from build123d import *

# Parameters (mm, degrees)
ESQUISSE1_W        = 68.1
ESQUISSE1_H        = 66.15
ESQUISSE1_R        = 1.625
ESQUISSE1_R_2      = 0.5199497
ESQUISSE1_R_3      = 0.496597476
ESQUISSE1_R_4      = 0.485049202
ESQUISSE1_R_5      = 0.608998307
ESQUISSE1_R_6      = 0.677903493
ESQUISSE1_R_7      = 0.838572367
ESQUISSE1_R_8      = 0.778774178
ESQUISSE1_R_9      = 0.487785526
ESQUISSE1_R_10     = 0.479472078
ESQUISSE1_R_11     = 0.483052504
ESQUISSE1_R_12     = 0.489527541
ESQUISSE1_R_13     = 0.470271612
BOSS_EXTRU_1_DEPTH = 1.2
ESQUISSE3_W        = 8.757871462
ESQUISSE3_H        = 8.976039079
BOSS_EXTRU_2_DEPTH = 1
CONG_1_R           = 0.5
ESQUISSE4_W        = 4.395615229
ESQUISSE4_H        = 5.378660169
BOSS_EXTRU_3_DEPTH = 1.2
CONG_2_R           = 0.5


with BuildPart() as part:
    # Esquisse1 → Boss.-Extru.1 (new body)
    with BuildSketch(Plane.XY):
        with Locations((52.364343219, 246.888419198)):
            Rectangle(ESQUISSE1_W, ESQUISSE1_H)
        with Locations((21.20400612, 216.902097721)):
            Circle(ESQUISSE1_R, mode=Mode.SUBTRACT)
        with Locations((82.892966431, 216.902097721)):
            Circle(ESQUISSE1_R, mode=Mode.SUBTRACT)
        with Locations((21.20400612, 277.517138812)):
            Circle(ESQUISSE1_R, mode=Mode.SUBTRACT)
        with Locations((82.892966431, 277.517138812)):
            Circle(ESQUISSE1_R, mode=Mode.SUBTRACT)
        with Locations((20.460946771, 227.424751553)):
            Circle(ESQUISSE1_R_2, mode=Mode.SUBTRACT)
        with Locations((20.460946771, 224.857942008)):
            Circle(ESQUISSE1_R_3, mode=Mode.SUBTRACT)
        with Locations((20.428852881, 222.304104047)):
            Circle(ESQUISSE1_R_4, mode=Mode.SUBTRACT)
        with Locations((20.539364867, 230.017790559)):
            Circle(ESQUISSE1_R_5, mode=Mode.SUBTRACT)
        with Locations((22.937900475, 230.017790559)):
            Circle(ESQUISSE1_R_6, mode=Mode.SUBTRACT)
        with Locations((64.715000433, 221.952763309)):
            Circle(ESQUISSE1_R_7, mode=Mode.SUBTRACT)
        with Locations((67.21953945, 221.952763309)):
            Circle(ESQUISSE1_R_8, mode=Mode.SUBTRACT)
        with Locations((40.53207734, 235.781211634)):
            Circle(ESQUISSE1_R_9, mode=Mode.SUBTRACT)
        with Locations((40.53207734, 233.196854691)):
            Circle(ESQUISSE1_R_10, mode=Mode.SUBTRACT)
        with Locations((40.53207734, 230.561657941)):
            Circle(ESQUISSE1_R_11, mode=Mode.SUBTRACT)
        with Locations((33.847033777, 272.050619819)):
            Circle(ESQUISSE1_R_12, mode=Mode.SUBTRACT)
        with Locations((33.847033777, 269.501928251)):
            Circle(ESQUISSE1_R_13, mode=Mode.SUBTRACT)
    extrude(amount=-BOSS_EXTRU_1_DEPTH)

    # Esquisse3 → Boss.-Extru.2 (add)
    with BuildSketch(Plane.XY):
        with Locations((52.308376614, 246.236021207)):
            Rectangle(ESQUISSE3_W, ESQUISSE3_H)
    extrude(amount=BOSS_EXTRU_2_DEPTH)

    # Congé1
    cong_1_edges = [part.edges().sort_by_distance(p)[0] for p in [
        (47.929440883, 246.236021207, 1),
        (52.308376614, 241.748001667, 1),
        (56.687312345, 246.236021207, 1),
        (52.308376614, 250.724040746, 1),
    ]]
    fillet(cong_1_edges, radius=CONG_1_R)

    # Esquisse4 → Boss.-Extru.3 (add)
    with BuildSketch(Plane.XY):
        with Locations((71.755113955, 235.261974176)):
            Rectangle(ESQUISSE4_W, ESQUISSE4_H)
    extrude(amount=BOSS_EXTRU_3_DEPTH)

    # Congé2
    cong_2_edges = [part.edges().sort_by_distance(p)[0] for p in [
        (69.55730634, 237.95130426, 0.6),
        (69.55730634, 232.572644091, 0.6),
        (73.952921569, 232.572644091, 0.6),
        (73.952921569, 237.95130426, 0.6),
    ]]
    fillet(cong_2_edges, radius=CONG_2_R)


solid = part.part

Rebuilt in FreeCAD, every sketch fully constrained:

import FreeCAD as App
import Part
import Sketcher


def edges_at(feature, points):
    """Names of the edges that pass closest to the given points."""
    edges = feature.Shape.Edges
    near = lambda p: min(range(len(edges)), key=lambda i: edges[i].distToShape(Part.Vertex(*p))[0])
    return sorted({f"Edge{near(p) + 1}" for p in points})

doc = App.newDocument("Part")
params = doc.addObject("Spreadsheet::Sheet", "Params")
for row, (alias, value) in enumerate([
    ("sketch1_diameter", "3.25 mm"),
    ("sketch1_width", "68.1 mm"),
    ("sketch1_height", "66.15 mm"),
    ("pad1_length", "1.2 mm"),
    ("pad2_length", "1 mm"),
    ("fillet_radius", "0.5 mm"),
    ("pad3_length", "1.2 mm"),
    ("fillet2_radius", "0.5 mm"),
], start=1):
    params.set(f"A{row}", alias)
    params.set(f"B{row}", "=" + value)
    params.setAlias(f"B{row}", alias)

body = doc.addObject("PartDesign::Body", "Body")

sketch1 = body.newObject("Sketcher::SketchObject", "Sketch")
sketch1.AttachmentSupport = (doc.getObject("XY_Plane"), [""])
sketch1.MapMode = "FlatFace"
sketch1.addGeometry(Part.LineSegment(App.Vector(18.314343, 279.963419, 0), App.Vector(18.314343, 213.813419, 0)), False)
sketch1.addGeometry(Part.LineSegment(App.Vector(18.314343, 213.813419, 0), App.Vector(86.414343, 213.813419, 0)), False)
sketch1.addGeometry(Part.LineSegment(App.Vector(86.414343, 213.813419, 0), App.Vector(86.414343, 279.963419, 0)), False)
sketch1.addGeometry(Part.LineSegment(App.Vector(86.414343, 279.963419, 0), App.Vector(18.314343, 279.963419, 0)), False)
sketch1.addGeometry(Part.Circle(App.Vector(21.204006, 216.902098, 0), App.Vector(0, 0, 1), 1.625), False)
sketch1.addGeometry(Part.Circle(App.Vector(20.428853, 222.304104, 0), App.Vector(0, 0, 1), 0.485049), False)
sketch1.addGeometry(Part.Circle(App.Vector(20.460947, 224.857942, 0), App.Vector(0, 0, 1), 0.496597), False)
sketch1.addGeometry(Part.Circle(App.Vector(20.460947, 227.424752, 0), App.Vector(0, 0, 1), 0.51995), False)
sketch1.addGeometry(Part.Circle(App.Vector(20.539365, 230.017791, 0), App.Vector(0, 0, 1), 0.608998), False)
sketch1.addGeometry(Part.Circle(App.Vector(22.9379, 230.017791, 0), App.Vector(0, 0, 1), 0.677903), False)
sketch1.addGeometry(Part.Circle(App.Vector(40.532077, 230.561658, 0), App.Vector(0, 0, 1), 0.483053), False)
sketch1.addGeometry(Part.Circle(App.Vector(40.532077, 233.196855, 0), App.Vector(0, 0, 1), 0.479472), False)
sketch1.addGeometry(Part.Circle(App.Vector(40.532077, 235.781212, 0), App.Vector(0, 0, 1), 0.487786), False)
sketch1.addGeometry(Part.Circle(App.Vector(64.715, 221.952763, 0), App.Vector(0, 0, 1), 0.838572), False)
sketch1.addGeometry(Part.Circle(App.Vector(67.219539, 221.952763, 0), App.Vector(0, 0, 1), 0.778774), False)
sketch1.addGeometry(Part.Circle(App.Vector(82.892966, 216.902098, 0), App.Vector(0, 0, 1), 1.625), False)
sketch1.addGeometry(Part.Circle(App.Vector(33.847034, 269.501928, 0), App.Vector(0, 0, 1), 0.470272), False)
sketch1.addGeometry(Part.Circle(App.Vector(21.204006, 277.517139, 0), App.Vector(0, 0, 1), 1.625), False)
sketch1.addGeometry(Part.Circle(App.Vector(33.847034, 272.05062, 0), App.Vector(0, 0, 1), 0.489528), False)
sketch1.addGeometry(Part.Circle(App.Vector(82.892966, 277.517139, 0), App.Vector(0, 0, 1), 1.625), False)
sketch1.addConstraint(Sketcher.Constraint("Coincident", 0, 2, 1, 1))
sketch1.addConstraint(Sketcher.Constraint("Coincident", 1, 2, 2, 1))
sketch1.addConstraint(Sketcher.Constraint("Coincident", 2, 2, 3, 1))
sketch1.addConstraint(Sketcher.Constraint("Coincident", 3, 2, 0, 1))
sketch1.addConstraint(Sketcher.Constraint("Vertical", 0))
sketch1.addConstraint(Sketcher.Constraint("Horizontal", 1))
sketch1.addConstraint(Sketcher.Constraint("Vertical", 2))
sketch1.addConstraint(Sketcher.Constraint("Horizontal", 3))
sketch1.addConstraint(Sketcher.Constraint("Equal", 4, 15))
sketch1.addConstraint(Sketcher.Constraint("Equal", 15, 17))
sketch1.addConstraint(Sketcher.Constraint("Equal", 17, 19))
sketch1.addConstraint(Sketcher.Constraint("Horizontal", 8, 3, 9, 3))
sketch1.addConstraint(Sketcher.Constraint("Horizontal", 13, 3, 14, 3))
sketch1.addConstraint(Sketcher.Constraint("Horizontal", 4, 3, 15, 3))
sketch1.addConstraint(Sketcher.Constraint("Horizontal", 17, 3, 19, 3))
sketch1.addConstraint(Sketcher.Constraint("Vertical", 6, 3, 7, 3))
sketch1.addConstraint(Sketcher.Constraint("Vertical", 10, 3, 11, 3))
sketch1.addConstraint(Sketcher.Constraint("Vertical", 11, 3, 12, 3))
sketch1.addConstraint(Sketcher.Constraint("Vertical", 4, 3, 17, 3))
sketch1.addConstraint(Sketcher.Constraint("Vertical", 16, 3, 18, 3))
sketch1.addConstraint(Sketcher.Constraint("Vertical", 15, 3, 19, 3))
sketch1.addConstraint(Sketcher.Constraint("Diameter", 4, 3.25))
sketch1.addConstraint(Sketcher.Constraint("DistanceX", 1, 1, 1, 2, 68.1))
sketch1.addConstraint(Sketcher.Constraint("Diameter", 5, 0.970098))
sketch1.addConstraint(Sketcher.Constraint("Diameter", 7, 1.039899))
sketch1.addConstraint(Sketcher.Constraint("DistanceY", 0, 2, 0, 1, 66.15))
sketch1.addConstraint(Sketcher.Constraint("Diameter", 12, 0.975571))
sketch1.addConstraint(Sketcher.Constraint("Diameter", 14, 1.557548))
sketch1.addConstraint(Sketcher.Constraint("Diameter", 6, 0.993195))
sketch1.addConstraint(Sketcher.Constraint("Diameter", 8, 1.217997))
sketch1.addConstraint(Sketcher.Constraint("Diameter", 9, 1.355807))
sketch1.addConstraint(Sketcher.Constraint("Diameter", 10, 0.966105))
sketch1.addConstraint(Sketcher.Constraint("Diameter", 11, 0.958944))
sketch1.addConstraint(Sketcher.Constraint("Diameter", 13, 1.677145))
sketch1.addConstraint(Sketcher.Constraint("Diameter", 16, 0.940543))
sketch1.addConstraint(Sketcher.Constraint("Diameter", 18, 0.979055))
sketch1.addConstraint(Sketcher.Constraint("DistanceX", -1, 1, 13, 3, 64.715))
sketch1.addConstraint(Sketcher.Constraint("DistanceX", -1, 1, 9, 3, 22.9379))
sketch1.addConstraint(Sketcher.Constraint("DistanceY", 18, 3, 2, 2, 7.912799))
sketch1.addConstraint(Sketcher.Constraint("DistanceY", -1, 1, 7, 3, 227.424752))
sketch1.addConstraint(Sketcher.Constraint("DistanceY", -1, 1, 8, 3, 230.017791))
sketch1.addConstraint(Sketcher.Constraint("DistanceY", -1, 1, 12, 3, 235.781212))
sketch1.addConstraint(Sketcher.Constraint("DistanceX", -1, 1, 14, 3, 67.219539))
sketch1.addConstraint(Sketcher.Constraint("DistanceY", -1, 1, 16, 3, 269.501928))
sketch1.addConstraint(Sketcher.Constraint("DistanceY", -1, 1, 17, 3, 277.517139))
sketch1.addConstraint(Sketcher.Constraint("DistanceY", -1, 1, 18, 3, 272.05062))
sketch1.addConstraint(Sketcher.Constraint("DistanceX", 6, 3, 4, 3, 0.743059))
sketch1.addConstraint(Sketcher.Constraint("DistanceY", 6, 3, 7, 3, 2.56681))
sketch1.addConstraint(Sketcher.Constraint("DistanceX", 7, 3, 8, 3, 0.078418))
sketch1.addConstraint(Sketcher.Constraint("DistanceX", 5, 3, 8, 3, 0.110512))
sketch1.addConstraint(Sketcher.Constraint("DistanceX", 7, 3, 10, 3, 20.071131))
sketch1.addConstraint(Sketcher.Constraint("DistanceY", 13, 3, 11, 3, 11.244091))
sketch1.addConstraint(Sketcher.Constraint("DistanceY", 13, 3, 12, 3, 13.828448))
sketch1.addConstraint(Sketcher.Constraint("DistanceX", 10, 3, 15, 3, 42.360889))
sketch1.addConstraint(Sketcher.Constraint("DistanceY", 15, 3, 10, 3, 13.65956))
sketch1.addConstraint(Sketcher.Constraint("DistanceY", 10, 3, 16, 3, 38.94027))
sketch1.addConstraint(Sketcher.Constraint("DistanceX", 8, 3, 16, 3, 13.307669))
sketch1.addConstraint(Sketcher.Constraint("DistanceX", 0, 2, 5, 3, 2.11451))
sketch1.addConstraint(Sketcher.Constraint("DistanceX", -1, 1, 4, 3, 21.204006))
sketch1.addConstraint(Sketcher.Constraint("DistanceY", -1, 1, 5, 3, 222.304104))
sketch1.setExpression("Constraints[21]", "Params.sketch1_diameter")
sketch1.setExpression("Constraints[22]", "Params.sketch1_width")
sketch1.setExpression("Constraints[25]", "Params.sketch1_height")
pad1 = body.newObject("PartDesign::Pad", "Pad")
pad1.Profile = sketch1
pad1.setExpression("Length", "Params.pad1_length")
pad1.Reversed = True

sketch2 = body.newObject("Sketcher::SketchObject", "Sketch001")
sketch2.AttachmentSupport = (doc.getObject("XY_Plane"), [""])
sketch2.MapMode = "FlatFace"
sketch2.addGeometry(Part.LineSegment(App.Vector(47.929441, 250.724041, 0), App.Vector(47.929441, 241.748002, 0)), False)
sketch2.addGeometry(Part.LineSegment(App.Vector(47.929441, 241.748002, 0), App.Vector(56.687312, 241.748002, 0)), False)
sketch2.addGeometry(Part.LineSegment(App.Vector(56.687312, 241.748002, 0), App.Vector(56.687312, 250.724041, 0)), False)
sketch2.addGeometry(Part.LineSegment(App.Vector(56.687312, 250.724041, 0), App.Vector(47.929441, 250.724041, 0)), False)
sketch2.addConstraint(Sketcher.Constraint("Coincident", 0, 2, 1, 1))
sketch2.addConstraint(Sketcher.Constraint("Coincident", 1, 2, 2, 1))
sketch2.addConstraint(Sketcher.Constraint("Coincident", 2, 2, 3, 1))
sketch2.addConstraint(Sketcher.Constraint("Coincident", 3, 2, 0, 1))
sketch2.addConstraint(Sketcher.Constraint("Vertical", 0))
sketch2.addConstraint(Sketcher.Constraint("Horizontal", 1))
sketch2.addConstraint(Sketcher.Constraint("Vertical", 2))
sketch2.addConstraint(Sketcher.Constraint("Horizontal", 3))
sketch2.addConstraint(Sketcher.Constraint("DistanceY", -1, 1, 0, 2, 241.748002))
sketch2.addConstraint(Sketcher.Constraint("DistanceX", 1, 1, 1, 2, 8.757871))
sketch2.addConstraint(Sketcher.Constraint("DistanceY", 0, 2, 0, 1, 8.976039))
sketch2.addConstraint(Sketcher.Constraint("DistanceX", -1, 1, 0, 2, 47.929441))
pad2 = body.newObject("PartDesign::Pad", "Pad001")
pad2.Profile = sketch2
pad2.setExpression("Length", "Params.pad2_length")
doc.recompute()

fillet = body.newObject("PartDesign::Fillet", "Fillet")
fillet.Base = (pad2, edges_at(pad2, [
    (47.929, 246.236, 1),
    (52.308, 241.748, 1),
    (56.687, 246.236, 1),
    (52.308, 250.724, 1),
]))
fillet.setExpression("Radius", "Params.fillet_radius")

sketch3 = body.newObject("Sketcher::SketchObject", "Sketch002")
sketch3.AttachmentSupport = (doc.getObject("XY_Plane"), [""])
sketch3.MapMode = "FlatFace"
sketch3.addGeometry(Part.LineSegment(App.Vector(69.557306, 237.951304, 0), App.Vector(69.557306, 232.572644, 0)), False)
sketch3.addGeometry(Part.LineSegment(App.Vector(69.557306, 232.572644, 0), App.Vector(73.952922, 232.572644, 0)), False)
sketch3.addGeometry(Part.LineSegment(App.Vector(73.952922, 232.572644, 0), App.Vector(73.952922, 237.951304, 0)), False)
sketch3.addGeometry(Part.LineSegment(App.Vector(73.952922, 237.951304, 0), App.Vector(69.557306, 237.951304, 0)), False)
sketch3.addConstraint(Sketcher.Constraint("Coincident", 0, 2, 1, 1))
sketch3.addConstraint(Sketcher.Constraint("Coincident", 1, 2, 2, 1))
sketch3.addConstraint(Sketcher.Constraint("Coincident", 2, 2, 3, 1))
sketch3.addConstraint(Sketcher.Constraint("Coincident", 3, 2, 0, 1))
sketch3.addConstraint(Sketcher.Constraint("Vertical", 0))
sketch3.addConstraint(Sketcher.Constraint("Horizontal", 1))
sketch3.addConstraint(Sketcher.Constraint("Vertical", 2))
sketch3.addConstraint(Sketcher.Constraint("Horizontal", 3))
sketch3.addConstraint(Sketcher.Constraint("DistanceY", 0, 2, 0, 1, 5.37866))
sketch3.addConstraint(Sketcher.Constraint("DistanceX", 1, 1, 1, 2, 4.395615))
sketch3.addConstraint(Sketcher.Constraint("DistanceX", -1, 1, 1, 2, 73.952922))
sketch3.addConstraint(Sketcher.Constraint("DistanceY", -1, 1, 0, 2, 232.572644))
pad3 = body.newObject("PartDesign::Pad", "Pad002")
pad3.Profile = sketch3
pad3.setExpression("Length", "Params.pad3_length")
doc.recompute()

fillet2 = body.newObject("PartDesign::Fillet", "Fillet001")
fillet2.Base = (pad3, edges_at(pad3, [
    (69.557, 237.951, 0.6),
    (69.557, 232.573, 0.6),
    (73.953, 232.573, 0.6),
    (73.953, 237.951, 0.6),
]))
fillet2.setExpression("Radius", "Params.fillet2_radius")

doc.recompute()
